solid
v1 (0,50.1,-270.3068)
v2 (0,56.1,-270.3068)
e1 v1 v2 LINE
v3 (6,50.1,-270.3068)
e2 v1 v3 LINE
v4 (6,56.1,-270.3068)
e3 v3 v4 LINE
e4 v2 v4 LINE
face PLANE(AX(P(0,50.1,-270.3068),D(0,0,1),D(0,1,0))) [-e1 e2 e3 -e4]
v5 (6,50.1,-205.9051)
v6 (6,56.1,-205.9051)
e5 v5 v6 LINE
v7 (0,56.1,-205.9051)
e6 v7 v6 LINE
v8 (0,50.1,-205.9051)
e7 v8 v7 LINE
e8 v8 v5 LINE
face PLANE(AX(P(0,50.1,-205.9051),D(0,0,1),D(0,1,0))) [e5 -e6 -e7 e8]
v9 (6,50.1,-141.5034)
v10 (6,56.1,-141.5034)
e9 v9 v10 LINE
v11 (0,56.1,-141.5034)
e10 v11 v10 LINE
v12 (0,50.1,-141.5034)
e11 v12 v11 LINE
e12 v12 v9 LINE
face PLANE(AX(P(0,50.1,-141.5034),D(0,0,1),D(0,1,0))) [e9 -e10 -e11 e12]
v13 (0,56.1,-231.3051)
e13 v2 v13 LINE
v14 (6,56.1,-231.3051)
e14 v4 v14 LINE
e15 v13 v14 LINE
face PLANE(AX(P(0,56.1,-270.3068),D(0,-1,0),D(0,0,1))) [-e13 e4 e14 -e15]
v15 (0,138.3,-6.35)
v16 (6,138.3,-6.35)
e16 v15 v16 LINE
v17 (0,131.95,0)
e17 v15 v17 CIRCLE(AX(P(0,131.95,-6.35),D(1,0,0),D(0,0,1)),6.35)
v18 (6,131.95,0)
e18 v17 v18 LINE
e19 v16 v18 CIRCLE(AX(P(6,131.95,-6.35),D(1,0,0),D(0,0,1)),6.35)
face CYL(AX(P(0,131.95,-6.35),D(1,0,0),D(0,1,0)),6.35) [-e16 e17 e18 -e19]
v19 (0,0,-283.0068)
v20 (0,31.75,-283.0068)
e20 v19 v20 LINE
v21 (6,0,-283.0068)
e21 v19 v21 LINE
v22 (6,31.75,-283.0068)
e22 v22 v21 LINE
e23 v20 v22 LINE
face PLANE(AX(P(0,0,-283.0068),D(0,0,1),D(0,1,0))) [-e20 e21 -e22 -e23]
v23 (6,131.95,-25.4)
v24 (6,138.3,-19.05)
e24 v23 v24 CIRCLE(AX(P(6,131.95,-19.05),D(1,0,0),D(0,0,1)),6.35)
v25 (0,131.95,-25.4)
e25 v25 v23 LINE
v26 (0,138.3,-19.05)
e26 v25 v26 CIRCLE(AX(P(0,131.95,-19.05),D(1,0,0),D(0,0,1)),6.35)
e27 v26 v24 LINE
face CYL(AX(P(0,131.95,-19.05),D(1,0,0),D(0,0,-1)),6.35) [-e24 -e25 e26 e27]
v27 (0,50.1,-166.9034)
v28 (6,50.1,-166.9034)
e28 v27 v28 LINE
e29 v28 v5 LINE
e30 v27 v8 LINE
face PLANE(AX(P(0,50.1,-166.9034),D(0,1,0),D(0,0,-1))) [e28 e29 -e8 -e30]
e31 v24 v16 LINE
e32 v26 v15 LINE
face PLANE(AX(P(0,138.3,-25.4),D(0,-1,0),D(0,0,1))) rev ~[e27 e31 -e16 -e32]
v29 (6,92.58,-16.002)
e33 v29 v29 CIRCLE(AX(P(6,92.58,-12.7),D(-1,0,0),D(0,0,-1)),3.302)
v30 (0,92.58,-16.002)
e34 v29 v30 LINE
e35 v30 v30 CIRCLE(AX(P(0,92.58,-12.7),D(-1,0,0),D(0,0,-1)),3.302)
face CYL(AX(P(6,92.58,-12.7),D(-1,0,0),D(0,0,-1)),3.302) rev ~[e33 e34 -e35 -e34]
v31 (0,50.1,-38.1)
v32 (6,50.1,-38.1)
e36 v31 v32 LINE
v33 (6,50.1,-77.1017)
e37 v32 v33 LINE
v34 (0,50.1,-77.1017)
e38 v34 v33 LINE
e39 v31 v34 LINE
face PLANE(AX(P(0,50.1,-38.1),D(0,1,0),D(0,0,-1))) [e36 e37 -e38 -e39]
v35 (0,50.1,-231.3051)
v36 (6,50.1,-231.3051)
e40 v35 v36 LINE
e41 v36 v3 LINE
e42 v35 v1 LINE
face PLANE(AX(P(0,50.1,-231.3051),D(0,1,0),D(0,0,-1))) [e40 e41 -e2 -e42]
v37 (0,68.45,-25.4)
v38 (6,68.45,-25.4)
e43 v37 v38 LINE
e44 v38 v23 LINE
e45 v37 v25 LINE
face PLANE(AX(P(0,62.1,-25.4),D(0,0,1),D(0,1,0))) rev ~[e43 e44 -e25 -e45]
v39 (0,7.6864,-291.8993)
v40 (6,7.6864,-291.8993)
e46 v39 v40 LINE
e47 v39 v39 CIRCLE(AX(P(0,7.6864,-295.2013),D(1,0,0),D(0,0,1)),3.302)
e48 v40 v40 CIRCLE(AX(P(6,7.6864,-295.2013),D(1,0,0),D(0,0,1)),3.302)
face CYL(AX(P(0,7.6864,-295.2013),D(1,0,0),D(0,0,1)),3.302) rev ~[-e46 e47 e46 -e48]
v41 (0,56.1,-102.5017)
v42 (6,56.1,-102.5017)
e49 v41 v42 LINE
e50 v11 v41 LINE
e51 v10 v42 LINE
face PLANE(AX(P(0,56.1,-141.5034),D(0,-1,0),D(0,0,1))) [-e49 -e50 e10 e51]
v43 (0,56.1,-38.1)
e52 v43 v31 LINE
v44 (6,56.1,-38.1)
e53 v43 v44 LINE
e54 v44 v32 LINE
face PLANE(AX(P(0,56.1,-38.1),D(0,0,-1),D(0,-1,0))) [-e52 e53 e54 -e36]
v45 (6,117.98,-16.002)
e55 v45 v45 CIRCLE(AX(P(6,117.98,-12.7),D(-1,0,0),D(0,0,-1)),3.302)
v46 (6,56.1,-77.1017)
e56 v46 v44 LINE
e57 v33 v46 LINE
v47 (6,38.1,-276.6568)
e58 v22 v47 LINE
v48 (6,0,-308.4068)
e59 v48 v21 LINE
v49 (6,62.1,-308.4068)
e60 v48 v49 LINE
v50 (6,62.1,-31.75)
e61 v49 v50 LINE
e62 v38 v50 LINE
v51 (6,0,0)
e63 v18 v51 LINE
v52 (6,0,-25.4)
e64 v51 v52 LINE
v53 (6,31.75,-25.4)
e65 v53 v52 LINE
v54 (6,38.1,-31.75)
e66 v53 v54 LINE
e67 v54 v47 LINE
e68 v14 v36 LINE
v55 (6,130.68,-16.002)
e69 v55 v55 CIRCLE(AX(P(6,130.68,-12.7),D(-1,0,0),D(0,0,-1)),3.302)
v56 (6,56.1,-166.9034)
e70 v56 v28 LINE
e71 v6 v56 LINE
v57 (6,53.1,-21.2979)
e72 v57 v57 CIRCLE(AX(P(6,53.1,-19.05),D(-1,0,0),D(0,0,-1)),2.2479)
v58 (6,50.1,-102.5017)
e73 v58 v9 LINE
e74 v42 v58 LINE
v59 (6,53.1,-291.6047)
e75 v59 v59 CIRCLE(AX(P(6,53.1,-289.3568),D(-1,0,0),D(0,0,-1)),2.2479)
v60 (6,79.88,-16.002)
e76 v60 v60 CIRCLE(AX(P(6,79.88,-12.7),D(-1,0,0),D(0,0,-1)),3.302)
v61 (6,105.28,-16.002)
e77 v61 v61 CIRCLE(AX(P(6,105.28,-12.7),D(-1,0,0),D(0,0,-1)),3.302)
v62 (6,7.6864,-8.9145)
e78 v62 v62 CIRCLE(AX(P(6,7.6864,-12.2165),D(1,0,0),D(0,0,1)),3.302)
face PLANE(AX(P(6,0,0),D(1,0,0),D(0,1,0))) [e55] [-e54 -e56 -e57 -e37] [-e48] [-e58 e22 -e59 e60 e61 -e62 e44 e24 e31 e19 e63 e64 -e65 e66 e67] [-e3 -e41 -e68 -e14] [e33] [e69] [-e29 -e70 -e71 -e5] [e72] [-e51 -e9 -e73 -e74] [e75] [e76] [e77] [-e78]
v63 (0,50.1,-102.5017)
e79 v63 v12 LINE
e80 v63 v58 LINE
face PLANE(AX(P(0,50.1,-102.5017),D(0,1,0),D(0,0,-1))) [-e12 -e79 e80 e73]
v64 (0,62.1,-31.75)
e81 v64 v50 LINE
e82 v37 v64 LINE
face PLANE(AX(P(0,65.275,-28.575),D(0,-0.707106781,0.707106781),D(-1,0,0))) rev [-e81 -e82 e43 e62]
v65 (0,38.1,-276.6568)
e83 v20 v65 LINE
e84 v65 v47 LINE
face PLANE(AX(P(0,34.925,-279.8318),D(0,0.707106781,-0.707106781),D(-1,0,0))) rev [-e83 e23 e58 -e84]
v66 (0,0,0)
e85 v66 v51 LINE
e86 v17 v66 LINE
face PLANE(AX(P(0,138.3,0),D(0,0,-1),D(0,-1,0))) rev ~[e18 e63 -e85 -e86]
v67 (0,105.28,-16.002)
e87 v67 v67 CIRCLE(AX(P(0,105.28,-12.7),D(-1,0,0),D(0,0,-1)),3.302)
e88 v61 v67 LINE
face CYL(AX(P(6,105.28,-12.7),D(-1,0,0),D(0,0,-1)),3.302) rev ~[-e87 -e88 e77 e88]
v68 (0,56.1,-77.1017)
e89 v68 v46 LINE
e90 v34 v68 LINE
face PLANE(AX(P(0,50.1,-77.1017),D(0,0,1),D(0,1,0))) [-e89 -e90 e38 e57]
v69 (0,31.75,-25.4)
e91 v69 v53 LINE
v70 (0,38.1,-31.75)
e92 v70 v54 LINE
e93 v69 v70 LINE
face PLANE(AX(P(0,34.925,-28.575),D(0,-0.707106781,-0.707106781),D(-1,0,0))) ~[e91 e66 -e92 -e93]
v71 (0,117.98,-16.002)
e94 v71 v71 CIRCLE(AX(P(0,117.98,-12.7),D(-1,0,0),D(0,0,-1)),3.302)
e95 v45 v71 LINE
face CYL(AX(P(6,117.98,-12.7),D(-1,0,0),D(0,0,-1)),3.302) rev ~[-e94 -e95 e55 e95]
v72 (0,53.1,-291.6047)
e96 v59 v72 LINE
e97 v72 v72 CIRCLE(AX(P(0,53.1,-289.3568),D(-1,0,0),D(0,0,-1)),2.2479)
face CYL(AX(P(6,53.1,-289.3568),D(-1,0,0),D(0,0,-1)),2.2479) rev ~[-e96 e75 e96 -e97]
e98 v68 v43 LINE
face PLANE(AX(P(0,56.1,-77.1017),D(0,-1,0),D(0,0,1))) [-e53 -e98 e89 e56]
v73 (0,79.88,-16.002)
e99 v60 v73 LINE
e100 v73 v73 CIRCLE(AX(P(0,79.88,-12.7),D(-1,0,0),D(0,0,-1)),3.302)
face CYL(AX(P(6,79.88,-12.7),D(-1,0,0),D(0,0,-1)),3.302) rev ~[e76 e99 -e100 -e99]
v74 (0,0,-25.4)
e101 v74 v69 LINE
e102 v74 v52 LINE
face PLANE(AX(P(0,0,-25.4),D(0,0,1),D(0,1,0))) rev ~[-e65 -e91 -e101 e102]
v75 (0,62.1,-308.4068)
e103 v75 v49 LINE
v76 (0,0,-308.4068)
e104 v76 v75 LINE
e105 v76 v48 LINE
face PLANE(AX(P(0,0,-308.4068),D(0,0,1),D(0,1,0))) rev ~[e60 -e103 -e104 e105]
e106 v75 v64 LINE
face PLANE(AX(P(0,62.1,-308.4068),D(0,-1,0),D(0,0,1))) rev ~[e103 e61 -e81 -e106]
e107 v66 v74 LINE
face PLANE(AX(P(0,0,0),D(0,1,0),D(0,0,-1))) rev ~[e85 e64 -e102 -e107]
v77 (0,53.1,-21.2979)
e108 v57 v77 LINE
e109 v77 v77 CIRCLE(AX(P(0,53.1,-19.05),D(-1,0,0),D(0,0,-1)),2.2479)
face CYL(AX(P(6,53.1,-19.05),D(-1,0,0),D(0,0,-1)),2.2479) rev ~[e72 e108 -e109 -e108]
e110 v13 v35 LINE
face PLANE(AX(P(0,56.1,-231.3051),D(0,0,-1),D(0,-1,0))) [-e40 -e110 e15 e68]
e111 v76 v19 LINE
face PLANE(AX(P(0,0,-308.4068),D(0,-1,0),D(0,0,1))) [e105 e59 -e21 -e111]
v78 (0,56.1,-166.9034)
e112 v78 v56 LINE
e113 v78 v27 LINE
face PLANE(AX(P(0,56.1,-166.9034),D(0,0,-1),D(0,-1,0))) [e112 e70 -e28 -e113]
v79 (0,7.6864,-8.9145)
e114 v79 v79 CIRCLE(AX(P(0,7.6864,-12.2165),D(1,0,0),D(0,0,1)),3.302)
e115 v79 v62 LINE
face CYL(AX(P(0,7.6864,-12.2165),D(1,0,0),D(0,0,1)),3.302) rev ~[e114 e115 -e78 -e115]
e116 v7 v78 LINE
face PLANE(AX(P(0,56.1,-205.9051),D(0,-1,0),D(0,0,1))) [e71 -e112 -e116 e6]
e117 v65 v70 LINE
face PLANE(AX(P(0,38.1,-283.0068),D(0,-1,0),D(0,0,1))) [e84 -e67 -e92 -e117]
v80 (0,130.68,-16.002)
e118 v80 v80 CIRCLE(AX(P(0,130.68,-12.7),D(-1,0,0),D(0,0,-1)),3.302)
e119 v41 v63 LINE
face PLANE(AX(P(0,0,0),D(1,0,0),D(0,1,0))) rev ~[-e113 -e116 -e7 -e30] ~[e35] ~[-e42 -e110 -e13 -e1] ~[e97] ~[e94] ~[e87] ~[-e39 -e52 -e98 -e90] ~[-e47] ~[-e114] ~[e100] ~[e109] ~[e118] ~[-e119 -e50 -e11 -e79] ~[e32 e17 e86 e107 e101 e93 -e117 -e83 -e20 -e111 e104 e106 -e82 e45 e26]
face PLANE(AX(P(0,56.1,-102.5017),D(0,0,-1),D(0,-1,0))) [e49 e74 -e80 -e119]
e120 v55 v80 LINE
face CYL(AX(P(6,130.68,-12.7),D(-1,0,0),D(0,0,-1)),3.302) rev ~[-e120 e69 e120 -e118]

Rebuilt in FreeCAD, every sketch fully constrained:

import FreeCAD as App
import Part
import Sketcher
from FreeCAD import Vector
Q = App.Units.Quantity


def edges_at(feature, points):
    """Names of the edges that pass closest to the given points."""
    edges = feature.Shape.Edges
    near = lambda p: min(range(len(edges)), key=lambda i: edges[i].distToShape(Part.Vertex(*p))[0])
    return sorted({f"Edge{near(p) + 1}" for p in points})


def add_polygon(sketch, points):
    """Adds a closed chain of lines whose ends are joined by coincident constraints."""
    first, n = sketch.GeometryCount, len(points)
    for a, b in zip(points, points[1:] + points[:1]):
        sketch.addGeometry(Part.LineSegment(App.Vector(*a, 0), App.Vector(*b, 0)), False)
    for i in range(n):
        sketch.addConstraint(Sketcher.Constraint("Coincident", first + i, 2, first + (i + 1) % n, 1))

doc = App.newDocument("Part")
body = doc.addObject("PartDesign::Body", "Body")

# Sketch on YZ plane
sketch1 = body.newObject("Sketcher::SketchObject", "Sketch")
sketch1.AttachmentSupport = (doc.getObject("YZ_Plane"), [""])
sketch1.MapMode = "FlatFace"
add_polygon(sketch1, [(138.3, 0), (0, 0), (0, -38.1), (38.1, -38.1), (38.1, -270.3068), (0, -270.3068), (0, -308.4068), (62.1, -308.4068), (62.1, -25.4), (138.3, -25.4)])  # lines 0-9
add_polygon(sketch1, [(50.1, -231.3051), (56.1, -231.3051), (56.1, -270.3068), (50.1, -270.3068)])  # lines 10-13
add_polygon(sketch1, [(50.1, -166.9034), (56.1, -166.9034), (56.1, -205.9051), (50.1, -205.9051)])  # lines 14-17
add_polygon(sketch1, [(50.1, -102.5017), (56.1, -102.5017), (56.1, -141.5034), (50.1, -141.5034)])  # lines 18-21
add_polygon(sketch1, [(50.1, -38.1), (56.1, -38.1), (56.1, -77.1017), (50.1, -77.1017)])  # lines 22-25
sketch1.addConstraint([
    Sketcher.Constraint("Horizontal", 0),
    Sketcher.Constraint("Vertical", 1),
    Sketcher.Constraint("Horizontal", 2),
    Sketcher.Constraint("Vertical", 3),
    Sketcher.Constraint("Horizontal", 4),
    Sketcher.Constraint("Vertical", 5),
    Sketcher.Constraint("Horizontal", 6),
    Sketcher.Constraint("Vertical", 7),
    Sketcher.Constraint("Horizontal", 8),
    Sketcher.Constraint("Vertical", 9),
    Sketcher.Constraint("Horizontal", 10),
    Sketcher.Constraint("Vertical", 11),
    Sketcher.Constraint("Horizontal", 12),
    Sketcher.Constraint("Vertical", 13),
    Sketcher.Constraint("Horizontal", 14),
    Sketcher.Constraint("Vertical", 15),
    Sketcher.Constraint("Horizontal", 16),
    Sketcher.Constraint("Vertical", 17),
    Sketcher.Constraint("Horizontal", 18),
    Sketcher.Constraint("Vertical", 19),
    Sketcher.Constraint("Horizontal", 20),
    Sketcher.Constraint("Vertical", 21),
    Sketcher.Constraint("Horizontal", 22),
    Sketcher.Constraint("Vertical", 23),
    Sketcher.Constraint("Horizontal", 24),
    Sketcher.Constraint("Vertical", 25),
    Sketcher.Constraint("Coincident", 0, 2, -1, 1),
    Sketcher.Constraint("PointOnObject", 4, 2, -2),
    Sketcher.Constraint("Horizontal", 4, 2, 11, 2),
    Sketcher.Constraint("Horizontal", 2, 2, 22, 2),
    Sketcher.Constraint("Vertical", 11, 2, 14, 2),
    Sketcher.Constraint("Vertical", 13, 2, 16, 2),
    Sketcher.Constraint("Vertical", 15, 2, 18, 2),
    Sketcher.Constraint("Vertical", 17, 2, 20, 2),
    Sketcher.Constraint("Vertical", 19, 2, 22, 2),
    Sketcher.Constraint("Vertical", 21, 2, 24, 2),
    Sketcher.Constraint("Equal", 4, 1),
    Sketcher.Constraint("Equal", 1, 5),
    Sketcher.Constraint("Equal", 13, 15),
    Sketcher.Constraint("Equal", 17, 19),
    Sketcher.Constraint("Equal", 21, 23),
    Sketcher.Constraint("DistanceX", 8, 1, 8, 2, Q("3 in")),
    Sketcher.Constraint("DistanceY", 9, 1, 9, 2, Q("1 in")),
    Sketcher.Constraint("DistanceX", 2, 1, 2, 2, Q("1.5 in")),
    Sketcher.Constraint("DistanceY", 10, 2, 15, 2, Q("1 in")),
    Sketcher.Constraint("DistanceY", 14, 2, 19, 2, Q("1 in")),
    Sketcher.Constraint("DistanceY", 18, 2, 23, 2, Q("1 in")),
    Sketcher.Constraint("DistanceY", 11, 2, 11, 1, Q("1.5355 in")),
    Sketcher.Constraint("DistanceX", 10, 1, 10, 2, Q("6 mm")),
    Sketcher.Constraint("DistanceX", -1, 1, 12, 2, Q("50.1 mm")),
    Sketcher.Constraint("DistanceX", 3, 2, 6, 2, Q("24 mm")),
])
pad1 = body.newObject("PartDesign::Pad", "Pad")
pad1.Profile = sketch1
pad1.Length = 6

# Sketch on YZ plane
sketch2 = body.newObject("Sketcher::SketchObject", "Sketch001")
sketch2.AttachmentSupport = (doc.getObject("YZ_Plane"), [""])
sketch2.MapMode = "FlatFace"
add_polygon(sketch2, [(0, -38.1), (0, -25.4), (38.1, -25.4), (38.1, -38.1)])  # lines 0-3
add_polygon(sketch2, [(0, -270.3068), (38.1, -270.3068), (38.1, -283.0068), (0, -283.0068)])  # lines 4-7
sketch2.addConstraint([
    Sketcher.Constraint("Vertical", 0),
    Sketcher.Constraint("Horizontal", 1),
    Sketcher.Constraint("Vertical", 2),
    Sketcher.Constraint("Horizontal", 3),
    Sketcher.Constraint("Horizontal", 4),
    Sketcher.Constraint("Vertical", 5),
    Sketcher.Constraint("Horizontal", 6),
    Sketcher.Constraint("Vertical", 7),
    Sketcher.Constraint("PointOnObject", 0, 2, -2),
    Sketcher.Constraint("PointOnObject", 6, 2, -2),
    Sketcher.Constraint("Vertical", 2, 2, 4, 2),
    Sketcher.Constraint("Equal", 2, 5),
    Sketcher.Constraint("DistanceX", 1, 1, 1, 2, Q("1.5 in")),
    Sketcher.Constraint("DistanceY", 0, 1, 0, 2, Q("0.5 in")),
    Sketcher.Constraint("DistanceY", 2, 2, -1, 1, Q("1.5 in")),
    Sketcher.Constraint("DistanceY", 4, 2, -1, 1, Q("10.642 in")),
])
pocket1 = body.newObject("PartDesign::Pocket", "Pocket")
pocket1.Profile = sketch2
pocket1.Type = "ThroughAll"
pocket1.Reversed = True
doc.recompute()

chamfer = body.newObject("PartDesign::Chamfer", "Chamfer")
chamfer.Base = (pocket1, edges_at(pocket1, [(3, 38.1, -283.007), (3, 38.1, -25.4)]))
chamfer.Size = Q("0.25 in")
doc.recompute()

chamfer2 = body.newObject("PartDesign::Chamfer", "Chamfer001")
chamfer2.Base = (chamfer, edges_at(chamfer, [(3, 62.1, -25.4)]))
chamfer2.Size = Q("0.25 in")
doc.recompute()

fillet = body.newObject("PartDesign::Fillet", "Fillet")
fillet.Base = (chamfer2, edges_at(chamfer2, [(3, 138.3, -25.4), (3, 138.3, 0)]))
fillet.Radius = Q("0.25 in")

# Sketch on YZ plane
sketch3 = body.newObject("Sketcher::SketchObject", "Sketch002")
sketch3.AttachmentSupport = (doc.getObject("YZ_Plane"), [""])
sketch3.MapMode = "FlatFace"
sketch3.addGeometry([
    Part.Circle(Vector(7.6864, -12.2165, 0), Vector(0, 0, 1), 3.302),
    Part.Circle(Vector(7.6864, -295.2013, 0), Vector(0, 0, 1), 3.302),
], False)
sketch3.addConstraint([
    Sketcher.Constraint("Equal", 0, 1),
    Sketcher.Constraint("Vertical", 0, 3, 1, 3),
    Sketcher.Constraint("Diameter", 0, Q("0.26 in")),
    Sketcher.Constraint("DistanceY", 1, 3, -1, 1, Q("11.6221 in")),
    Sketcher.Constraint("DistanceX", -1, 1, 0, 3, Q("7.6864 mm")),
    Sketcher.Constraint("DistanceY", 0, 3, -1, 1, Q("12.2165 mm")),
])
doc.recompute()
hole = body.newObject("PartDesign::Hole", "Hole")
hole.Profile = sketch3
hole.ThreadType = "None"
hole.Diameter = Q("0.26 in")
hole.DepthType = "Dimension"
hole.Depth = Q("0.673 in")
hole.DrillPoint = "Angled"
hole.DrillPointAngle = 118
hole.Reversed = True

# Sketch on YZ plane
sketch4 = body.newObject("Sketcher::SketchObject", "Sketch003")
sketch4.AttachmentSupport = (doc.getObject("YZ_Plane"), [""])
sketch4.MapMode = "FlatFace"
sketch4.AttachmentOffset = App.Placement(Vector(0, 0, 6), App.Rotation())
sketch4.addGeometry([
    Part.Circle(Vector(79.88, -12.7, 0), Vector(0, 0, 1), 3.302),  # 0
    Part.Circle(Vector(92.58, -12.7, 0), Vector(0, 0, 1), 3.302),  # 1
    Part.Circle(Vector(105.28, -12.7, 0), Vector(0, 0, 1), 3.302),  # 2
    Part.Circle(Vector(117.98, -12.7, 0), Vector(0, 0, 1), 3.302),  # 3
    Part.Circle(Vector(130.68, -12.7, 0), Vector(0, 0, 1), 3.302),  # 4
], False)
sketch4.addConstraint([
    Sketcher.Constraint("Equal", 0, 1),
    Sketcher.Constraint("Equal", 1, 2),
    Sketcher.Constraint("Equal", 2, 3),
    Sketcher.Constraint("Equal", 3, 4),
    Sketcher.Constraint("Horizontal", 0, 3, 1, 3),
    Sketcher.Constraint("Horizontal", 1, 3, 2, 3),
    Sketcher.Constraint("Horizontal", 2, 3, 3, 3),
    Sketcher.Constraint("Horizontal", 3, 3, 4, 3),
    Sketcher.Constraint("Diameter", 0, Q("0.26 in")),
    Sketcher.Constraint("DistanceX", 0, 3, 2, 3, Q("1 in")),
    Sketcher.Constraint("DistanceX", 1, 3, 3, 3, Q("1 in")),
    Sketcher.Constraint("DistanceX", 2, 3, 4, 3, Q("1 in")),
    Sketcher.Constraint("DistanceY", 0, 3, -1, 1, Q("0.5 in")),
    Sketcher.Constraint("DistanceX", 0, 3, 1, 3, Q("0.5 in")),
    Sketcher.Constraint("DistanceX", -1, 1, 0, 3, Q("79.88 mm")),
])
doc.recompute()
hole2 = body.newObject("PartDesign::Hole", "Hole001")
hole2.Profile = sketch4
hole2.ThreadType = "None"
hole2.Diameter = Q("0.26 in")
hole2.DepthType = "Dimension"
hole2.Depth = Q("0.673 in")
hole2.DrillPoint = "Angled"
hole2.DrillPointAngle = 118

# Sketch on YZ plane
sketch5 = body.newObject("Sketcher::SketchObject", "Sketch004")
sketch5.AttachmentSupport = (doc.getObject("YZ_Plane"), [""])
sketch5.MapMode = "FlatFace"
sketch5.AttachmentOffset = App.Placement(Vector(0, 0, 6), App.Rotation())
sketch5.addGeometry([
    Part.Circle(Vector(53.1, -289.3568, 0), Vector(0, 0, 1), 2.2479),
    Part.Circle(Vector(53.1, -19.05, 0), Vector(0, 0, 1), 2.2479),
], False)
sketch5.addConstraint([
    Sketcher.Constraint("Equal", 0, 1),
    Sketcher.Constraint("Vertical", 0, 3, 1, 3),
    Sketcher.Constraint("Diameter", 0, Q("0.177 in")),
    Sketcher.Constraint("DistanceY", 1, 3, -1, 1, Q("0.75 in")),
    Sketcher.Constraint("DistanceY", 0, 3, -1, 1, Q("11.392 in")),
    Sketcher.Constraint("DistanceX", -1, 1, 0, 3, Q("53.1 mm")),
])
doc.recompute()
hole3 = body.newObject("PartDesign::Hole", "Hole002")
hole3.Profile = sketch5
hole3.ThreadType = "None"
hole3.Diameter = Q("0.177 in")
hole3.DepthType = "Dimension"
hole3.Depth = Q("0.673 in")
hole3.DrillPoint = "Angled"
hole3.DrillPointAngle = 118

doc.recompute()
